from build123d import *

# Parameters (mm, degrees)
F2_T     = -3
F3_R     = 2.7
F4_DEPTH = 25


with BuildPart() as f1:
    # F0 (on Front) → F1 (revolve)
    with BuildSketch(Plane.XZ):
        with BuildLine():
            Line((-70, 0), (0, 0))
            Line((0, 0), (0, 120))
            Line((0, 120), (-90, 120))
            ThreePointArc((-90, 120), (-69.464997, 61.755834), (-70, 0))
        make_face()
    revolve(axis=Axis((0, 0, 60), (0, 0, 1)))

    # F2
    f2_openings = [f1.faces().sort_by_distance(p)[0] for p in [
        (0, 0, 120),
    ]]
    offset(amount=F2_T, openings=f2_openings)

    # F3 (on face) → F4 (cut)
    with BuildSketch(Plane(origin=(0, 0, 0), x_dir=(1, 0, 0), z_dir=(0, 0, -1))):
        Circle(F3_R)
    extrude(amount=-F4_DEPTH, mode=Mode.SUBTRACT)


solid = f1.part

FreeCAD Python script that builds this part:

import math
import FreeCAD as App
import Part
import Sketcher


def faces_at(feature, points):
    """Names of the faces that lie closest to the given points."""
    faces = feature.Shape.Faces
    near = lambda p: min(range(len(faces)), key=lambda i: faces[i].distToShape(Part.Vertex(*p))[0])
    return sorted({f"Face{near(p) + 1}" for p in points})

doc = App.newDocument("Part")
body = doc.addObject("PartDesign::Body", "Body")

# Sketch on XZ plane
sketch1 = doc.addObject("Sketcher::SketchObject", "Sketch")
body.addObject(sketch1)
sketch1.AttachmentSupport = (doc.XZ_Plane, [""])
sketch1.MapMode = "FlatFace"
sketch1.addGeometry([
    Part.LineSegment(App.Vector(-70, 0, 0), App.Vector(0, 0, 0)),
    Part.LineSegment(App.Vector(0, 0, 0), App.Vector(0, 120, 0)),
    Part.LineSegment(App.Vector(0, 120, 0), App.Vector(-90, 120, 0)),
    Part.ArcOfCircle(Part.Circle(App.Vector(-245.591491, 32.401418, 0), App.Vector(0, 0, 1), 178.555939), math.radians(-10.455027), math.radians(29.379671)),
], False)
sketch1.addConstraint([
    Sketcher.Constraint("Coincident", 0, 2, 1, 1),
    Sketcher.Constraint("Coincident", 1, 2, 2, 1),
    Sketcher.Constraint("Coincident", 2, 2, 3, 2),
    Sketcher.Constraint("Coincident", 3, 1, 0, 1),
    Sketcher.Constraint("Horizontal", 0),
    Sketcher.Constraint("Vertical", 1),
    Sketcher.Constraint("Horizontal", 2),
    Sketcher.Constraint("Coincident", 0, 2, -1, 1),
    Sketcher.Constraint("DistanceX", 0, 1, 0, 2, 70.0),
    Sketcher.Constraint("DistanceX", 2, 2, 2, 1, 90.0),
    Sketcher.Constraint("DistanceY", 1, 1, 1, 2, 120.0),
    Sketcher.Constraint("Radius", 3, 178.555939),
])
revolution = doc.addObject("PartDesign::Revolution", "Revolution")
body.addObject(revolution)
revolution.Profile = sketch1
revolution.ReferenceAxis = (sketch1, ["V_Axis"])
revolution.Angle = 360
doc.recompute()

thickness = doc.addObject("PartDesign::Thickness", "Thickness")
body.addObject(thickness)
thickness.Base = (revolution, faces_at(revolution, [(0, 0, 120)]))
thickness.Value = 3
thickness.Reversed = True
thickness.Join = "Arc"

# Sketch on XY plane
sketch2 = doc.addObject("Sketcher::SketchObject", "Sketch001")
body.addObject(sketch2)
sketch2.AttachmentSupport = (doc.XY_Plane, [""])
sketch2.MapMode = "FlatFace"
sketch2.addGeometry(Part.Circle(App.Vector(0, 0, 0), App.Vector(0, 0, 1), 2.7), False)
sketch2.addConstraint([
    Sketcher.Constraint("Coincident", 0, 3, -1, 1),
    Sketcher.Constraint("Diameter", 0, 5.4),
])
pocket1 = doc.addObject("PartDesign::Pocket", "Pocket")
body.addObject(pocket1)
pocket1.Profile = sketch2
pocket1.Length = 25
pocket1.Reversed = True

doc.recompute()
